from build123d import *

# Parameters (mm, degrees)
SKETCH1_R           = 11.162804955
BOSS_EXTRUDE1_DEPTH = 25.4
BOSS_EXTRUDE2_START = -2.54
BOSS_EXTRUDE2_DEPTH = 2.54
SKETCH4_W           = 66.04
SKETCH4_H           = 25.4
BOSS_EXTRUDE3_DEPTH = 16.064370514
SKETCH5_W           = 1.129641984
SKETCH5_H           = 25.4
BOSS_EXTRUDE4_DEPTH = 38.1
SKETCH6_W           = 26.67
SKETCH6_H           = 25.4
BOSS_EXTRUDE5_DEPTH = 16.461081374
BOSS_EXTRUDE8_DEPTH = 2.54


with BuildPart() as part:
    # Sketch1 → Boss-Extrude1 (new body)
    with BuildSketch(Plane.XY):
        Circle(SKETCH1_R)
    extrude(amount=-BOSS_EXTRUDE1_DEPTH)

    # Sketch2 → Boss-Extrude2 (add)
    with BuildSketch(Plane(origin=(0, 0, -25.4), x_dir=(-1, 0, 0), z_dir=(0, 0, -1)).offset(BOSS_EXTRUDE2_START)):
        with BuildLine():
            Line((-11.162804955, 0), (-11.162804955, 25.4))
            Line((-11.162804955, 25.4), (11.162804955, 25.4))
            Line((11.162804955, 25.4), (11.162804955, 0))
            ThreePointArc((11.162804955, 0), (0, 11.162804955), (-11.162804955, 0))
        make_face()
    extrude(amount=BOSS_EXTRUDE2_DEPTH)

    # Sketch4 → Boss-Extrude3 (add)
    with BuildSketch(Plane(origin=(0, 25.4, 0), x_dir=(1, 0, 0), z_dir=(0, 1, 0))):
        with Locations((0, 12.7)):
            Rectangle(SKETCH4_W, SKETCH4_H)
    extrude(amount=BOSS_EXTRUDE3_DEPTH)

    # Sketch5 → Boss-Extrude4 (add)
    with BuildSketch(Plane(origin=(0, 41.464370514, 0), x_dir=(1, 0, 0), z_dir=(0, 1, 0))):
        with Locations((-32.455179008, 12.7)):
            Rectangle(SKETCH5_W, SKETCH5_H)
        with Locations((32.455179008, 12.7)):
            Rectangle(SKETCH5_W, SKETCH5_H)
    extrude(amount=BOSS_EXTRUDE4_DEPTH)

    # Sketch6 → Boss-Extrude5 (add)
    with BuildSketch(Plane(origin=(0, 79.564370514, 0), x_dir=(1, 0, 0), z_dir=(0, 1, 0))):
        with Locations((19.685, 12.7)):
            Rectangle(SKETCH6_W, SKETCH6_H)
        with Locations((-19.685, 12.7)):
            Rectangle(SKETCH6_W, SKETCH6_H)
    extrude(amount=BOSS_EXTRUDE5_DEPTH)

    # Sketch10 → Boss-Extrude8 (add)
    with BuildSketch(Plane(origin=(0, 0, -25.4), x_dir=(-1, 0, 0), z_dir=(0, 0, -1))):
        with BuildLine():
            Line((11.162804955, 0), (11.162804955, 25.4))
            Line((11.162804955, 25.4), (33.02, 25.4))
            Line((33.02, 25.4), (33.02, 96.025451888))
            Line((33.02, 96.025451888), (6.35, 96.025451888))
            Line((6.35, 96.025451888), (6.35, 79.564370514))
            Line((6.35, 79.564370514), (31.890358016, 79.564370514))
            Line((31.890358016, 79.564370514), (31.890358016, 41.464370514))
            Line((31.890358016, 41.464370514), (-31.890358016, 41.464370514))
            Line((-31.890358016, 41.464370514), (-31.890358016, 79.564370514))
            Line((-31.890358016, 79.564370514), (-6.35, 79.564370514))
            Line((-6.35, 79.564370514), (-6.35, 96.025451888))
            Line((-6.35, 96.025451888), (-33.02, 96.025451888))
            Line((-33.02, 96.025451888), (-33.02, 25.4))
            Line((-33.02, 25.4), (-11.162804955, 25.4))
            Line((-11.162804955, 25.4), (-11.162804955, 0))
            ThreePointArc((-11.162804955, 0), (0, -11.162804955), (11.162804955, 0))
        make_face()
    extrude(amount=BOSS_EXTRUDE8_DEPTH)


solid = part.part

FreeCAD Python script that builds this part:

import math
import FreeCAD as App
import Part
import Sketcher
from FreeCAD import Vector
Q = App.Units.Quantity

doc = App.newDocument("Part")
params = doc.addObject("Spreadsheet::Sheet", "Params")
for row, (alias, value) in enumerate([
    ("pad1_length", "1 in"),
    ("sketch2_height", "1 in"),
    ("pad2_length", "0.1 in"),
    ("sketch3_height", "1 in"),
    ("sketch3_width", "2.6 in"),
    ("pad3_length", "16.064371 mm"),
    ("sketch4_height", "1 in"),
    ("pad4_length", "1.5 in"),
    ("sketch5_height", "1 in"),
    ("sketch5_width", "1.05 in"),
    ("pad5_length", "16.461081 mm"),
    ("sketch6_height", "1 in"),
    ("sketch6_height2", "1.5 in"),
    ("sketch6_width", "1.05 in"),
    ("pad6_length", "0.1 in"),
], start=1):
    params.set(f"A{row}", alias)
    params.set(f"B{row}", "=" + value)
    params.setAlias(f"B{row}", alias)

body = doc.addObject("PartDesign::Body", "Body")

# Sketch on XY plane
sketch1 = body.newObject("Sketcher::SketchObject", "Sketch")
sketch1.AttachmentSupport = (doc.getObject("XY_Plane"), [""])
sketch1.MapMode = "FlatFace"
sketch1.addGeometry(Part.Circle(Vector(0, 0, 0), Vector(0, 0, 1), 11), False)
sketch1.addConstraint([
    Sketcher.Constraint("Coincident", 0, 3, -1, 1),
    Sketcher.Constraint("Diameter", 0, Q("22.32561 mm")),
])
pad1 = body.newObject("PartDesign::Pad", "Pad")
pad1.Profile = sketch1
pad1.setExpression("Length", "Params.pad1_length")
pad1.Reversed = True

# Sketch on XY plane
sketch2 = body.newObject("Sketcher::SketchObject", "Sketch001")
sketch2.AttachmentSupport = (doc.getObject("XY_Plane"), [""])
sketch2.MapMode = "FlatFace"
sketch2.AttachmentOffset = App.Placement(Vector(0, 0, -0.9 * 25.4), App.Rotation())
sketch2.addGeometry([
    Part.LineSegment(Vector(11, 25, 0), Vector(11, 0, 0)),
    Part.ArcOfCircle(Part.Circle(Vector(0, 0, 0), Vector(0, 0, 1), 11), math.radians(0), math.radians(180)),
    Part.LineSegment(Vector(-11, 0, 0), Vector(-11, 25, 0)),
    Part.LineSegment(Vector(-11, 25, 0), Vector(11, 25, 0)),
], False)
sketch2.addConstraint([
    Sketcher.Constraint("Tangent", 0, 2, 1, 1),
    Sketcher.Constraint("Tangent", 1, 2, 2, 1),
    Sketcher.Constraint("Coincident", 2, 2, 3, 1),
    Sketcher.Constraint("Coincident", 3, 2, 0, 1),
    Sketcher.Constraint("Vertical", 0),
    Sketcher.Constraint("Vertical", 2),
    Sketcher.Constraint("Horizontal", 3),
    Sketcher.Constraint("Coincident", 1, 3, -1, 1),
    Sketcher.Constraint("DistanceY", 0, 2, 0, 1, Q("1 in")),
    Sketcher.Constraint("Radius", 1, Q("11.162805 mm")),
])
sketch2.setExpression("Constraints[8]", "Params.sketch2_height")
pad2 = body.newObject("PartDesign::Pad", "Pad001")
pad2.Profile = sketch2
pad2.setExpression("Length", "Params.pad2_length")
pad2.Reversed = True

# Sketch on XZ plane
sketch3 = body.newObject("Sketcher::SketchObject", "Sketch002")
sketch3.AttachmentSupport = (doc.getObject("XZ_Plane"), [""])
sketch3.MapMode = "FlatFace"
sketch3.AttachmentOffset = App.Placement(Vector(0, 0, -1 * 25.4), App.Rotation())
sketch3.addGeometry([
    Part.LineSegment(Vector(-33, -25, 0), Vector(-33, 0, 0)),
    Part.LineSegment(Vector(-33, 0, 0), Vector(33, 0, 0)),
    Part.LineSegment(Vector(33, 0, 0), Vector(33, -25, 0)),
    Part.LineSegment(Vector(33, -25, 0), Vector(-33, -25, 0)),
], False)
sketch3.addConstraint([
    Sketcher.Constraint("Coincident", 0, 2, 1, 1),
    Sketcher.Constraint("Coincident", 1, 2, 2, 1),
    Sketcher.Constraint("Coincident", 2, 2, 3, 1),
    Sketcher.Constraint("Coincident", 3, 2, 0, 1),
    Sketcher.Constraint("Vertical", 0),
    Sketcher.Constraint("Horizontal", 1),
    Sketcher.Constraint("Vertical", 2),
    Sketcher.Constraint("Horizontal", 3),
    Sketcher.Constraint("Symmetric", 0, 2, 1, 2, -1, 1),
    Sketcher.Constraint("DistanceY", 0, 1, 0, 2, Q("1 in")),
    Sketcher.Constraint("DistanceX", 1, 1, 1, 2, Q("2.6 in")),
])
sketch3.setExpression("Constraints[9]", "Params.sketch3_height")
sketch3.setExpression("Constraints[10]", "Params.sketch3_width")
pad3 = body.newObject("PartDesign::Pad", "Pad002")
pad3.Profile = sketch3
pad3.setExpression("Length", "Params.pad3_length")
pad3.Reversed = True

# Sketch on XZ plane
sketch4 = body.newObject("Sketcher::SketchObject", "Sketch003")
sketch4.AttachmentSupport = (doc.getObject("XZ_Plane"), [""])
sketch4.MapMode = "FlatFace"
sketch4.AttachmentOffset = App.Placement(Vector(0, 0, -41.464371), App.Rotation())
sketch4.addGeometry([
    Part.LineSegment(Vector(-33, -25.4, 0), Vector(-33, 0, 0)),  # 0
    Part.LineSegment(Vector(-33, 0, 0), Vector(-31.9, 0, 0)),  # 1
    Part.LineSegment(Vector(-31.9, 0, 0), Vector(-31.9, -25.4, 0)),  # 2
    Part.LineSegment(Vector(-31.9, -25.4, 0), Vector(-33, -25.4, 0)),  # 3
    Part.LineSegment(Vector(31.9, -25.4, 0), Vector(31.9, 0, 0)),  # 4
    Part.LineSegment(Vector(31.9, 0, 0), Vector(33, 0, 0)),  # 5
    Part.LineSegment(Vector(33, 0, 0), Vector(33, -25.4, 0)),  # 6
    Part.LineSegment(Vector(33, -25.4, 0), Vector(31.9, -25.4, 0)),  # 7
], False)
sketch4.addConstraint([
    Sketcher.Constraint("Coincident", 0, 2, 1, 1),
    Sketcher.Constraint("Coincident", 1, 2, 2, 1),
    Sketcher.Constraint("Coincident", 2, 2, 3, 1),
    Sketcher.Constraint("Coincident", 3, 2, 0, 1),
    Sketcher.Constraint("Coincident", 4, 2, 5, 1),
    Sketcher.Constraint("Coincident", 5, 2, 6, 1),
    Sketcher.Constraint("Coincident", 6, 2, 7, 1),
    Sketcher.Constraint("Coincident", 7, 2, 4, 1),
    Sketcher.Constraint("Vertical", 0),
    Sketcher.Constraint("Horizontal", 1),
    Sketcher.Constraint("Vertical", 2),
    Sketcher.Constraint("Horizontal", 3),
    Sketcher.Constraint("Vertical", 4),
    Sketcher.Constraint("Horizontal", 5),
    Sketcher.Constraint("Vertical", 6),
    Sketcher.Constraint("Horizontal", 7),
    Sketcher.Constraint("Symmetric", 1, 2, 4, 2, -1, 1),
    Sketcher.Constraint("Symmetric", 0, 2, 5, 2, -2),
    Sketcher.Constraint("Horizontal", 3, 2, 6, 2),
    Sketcher.Constraint("DistanceY", 0, 1, 0, 2, Q("1 in")),
    Sketcher.Constraint("DistanceX", 0, 2, -1, 1, Q("1.3 in")),
    Sketcher.Constraint("DistanceX", 1, 1, 1, 2, Q("1.129642 mm")),
])
sketch4.setExpression("Constraints[19]", "Params.sketch4_height")
pad4 = body.newObject("PartDesign::Pad", "Pad003")
pad4.Profile = sketch4
pad4.setExpression("Length", "Params.pad4_length")
pad4.Reversed = True

# Sketch on XZ plane
sketch5 = body.newObject("Sketcher::SketchObject", "Sketch004")
sketch5.AttachmentSupport = (doc.getObject("XZ_Plane"), [""])
sketch5.MapMode = "FlatFace"
sketch5.AttachmentOffset = App.Placement(Vector(0, 0, -79.564371), App.Rotation())
sketch5.addGeometry([
    Part.LineSegment(Vector(6, -25, 0), Vector(6, 0, 0)),  # 0
    Part.LineSegment(Vector(6, 0, 0), Vector(33, 0, 0)),  # 1
    Part.LineSegment(Vector(33, 0, 0), Vector(33, -25, 0)),  # 2
    Part.LineSegment(Vector(33, -25, 0), Vector(6, -25, 0)),  # 3
    Part.LineSegment(Vector(-33, -25, 0), Vector(-33, 0, 0)),  # 4
    Part.LineSegment(Vector(-33, 0, 0), Vector(-6, 0, 0)),  # 5
    Part.LineSegment(Vector(-6, 0, 0), Vector(-6, -25, 0)),  # 6
    Part.LineSegment(Vector(-6, -25, 0), Vector(-33, -25, 0)),  # 7
], False)
sketch5.addConstraint([
    Sketcher.Constraint("Coincident", 0, 2, 1, 1),
    Sketcher.Constraint("Coincident", 1, 2, 2, 1),
    Sketcher.Constraint("Coincident", 2, 2, 3, 1),
    Sketcher.Constraint("Coincident", 3, 2, 0, 1),
    Sketcher.Constraint("Coincident", 4, 2, 5, 1),
    Sketcher.Constraint("Coincident", 5, 2, 6, 1),
    Sketcher.Constraint("Coincident", 6, 2, 7, 1),
    Sketcher.Constraint("Coincident", 7, 2, 4, 1),
    Sketcher.Constraint("Vertical", 0),
    Sketcher.Constraint("Horizontal", 1),
    Sketcher.Constraint("Vertical", 2),
    Sketcher.Constraint("Horizontal", 3),
    Sketcher.Constraint("Vertical", 4),
    Sketcher.Constraint("Horizontal", 5),
    Sketcher.Constraint("Vertical", 6),
    Sketcher.Constraint("Horizontal", 7),
    Sketcher.Constraint("Symmetric", 1, 2, 4, 2, -1, 1),
    Sketcher.Constraint("Symmetric", 0, 2, 5, 2, -2),
    Sketcher.Constraint("Horizontal", 3, 2, 6, 2),
    Sketcher.Constraint("DistanceY", 0, 1, 0, 2, Q("1 in")),
    Sketcher.Constraint("DistanceX", 1, 1, 1, 2, Q("1.05 in")),
    Sketcher.Constraint("DistanceX", -1, 1, 1, 2, Q("1.3 in")),
])
sketch5.setExpression("Constraints[19]", "Params.sketch5_height")
sketch5.setExpression("Constraints[20]", "Params.sketch5_width")
pad5 = body.newObject("PartDesign::Pad", "Pad004")
pad5.Profile = sketch5
pad5.setExpression("Length", "Params.pad5_length")
pad5.Reversed = True

# Sketch on XY plane
sketch6 = body.newObject("Sketcher::SketchObject", "Sketch005")
sketch6.AttachmentSupport = (doc.getObject("XY_Plane"), [""])
sketch6.MapMode = "FlatFace"
sketch6.AttachmentOffset = App.Placement(Vector(0, 0, -1 * 25.4), App.Rotation())
sketch6.addGeometry([
    Part.LineSegment(Vector(-11, 0, 0), Vector(-11, 25, 0)),  # 0
    Part.LineSegment(Vector(-11, 25, 0), Vector(-33, 25, 0)),  # 1
    Part.LineSegment(Vector(-33, 25, 0), Vector(-33, 96, 0)),  # 2
    Part.LineSegment(Vector(-33, 96, 0), Vector(-6, 96, 0)),  # 3
    Part.LineSegment(Vector(-6, 96, 0), Vector(-6, 80, 0)),  # 4
    Part.LineSegment(Vector(-6, 80, 0), Vector(-32, 80, 0)),  # 5
    Part.LineSegment(Vector(-32, 80, 0), Vector(-32, 41, 0)),  # 6
    Part.LineSegment(Vector(-32, 41, 0), Vector(32, 41, 0)),  # 7
    Part.LineSegment(Vector(32, 41, 0), Vector(32, 80, 0)),  # 8
    Part.LineSegment(Vector(32, 80, 0), Vector(6, 80, 0)),  # 9
    Part.LineSegment(Vector(6, 80, 0), Vector(6, 96, 0)),  # 10
    Part.LineSegment(Vector(6, 96, 0), Vector(33, 96, 0)),  # 11
    Part.LineSegment(Vector(33, 96, 0), Vector(33, 25, 0)),  # 12
    Part.LineSegment(Vector(33, 25, 0), Vector(11, 25, 0)),  # 13
    Part.LineSegment(Vector(11, 25, 0), Vector(11, 0, 0)),  # 14
    Part.ArcOfCircle(Part.Circle(Vector(0, 0, 0), Vector(0, 0, 1), 11), math.radians(180), math.radians(360)),  # 15
], False)
sketch6.addConstraint([
    Sketcher.Constraint("Coincident", 0, 2, 1, 1),
    Sketcher.Constraint("Coincident", 1, 2, 2, 1),
    Sketcher.Constraint("Coincident", 2, 2, 3, 1),
    Sketcher.Constraint("Coincident", 3, 2, 4, 1),
    Sketcher.Constraint("Coincident", 4, 2, 5, 1),
    Sketcher.Constraint("Coincident", 5, 2, 6, 1),
    Sketcher.Constraint("Coincident", 6, 2, 7, 1),
    Sketcher.Constraint("Coincident", 7, 2, 8, 1),
    Sketcher.Constraint("Coincident", 8, 2, 9, 1),
    Sketcher.Constraint("Coincident", 9, 2, 10, 1),
    Sketcher.Constraint("Coincident", 10, 2, 11, 1),
    Sketcher.Constraint("Coincident", 11, 2, 12, 1),
    Sketcher.Constraint("Coincident", 12, 2, 13, 1),
    Sketcher.Constraint("Coincident", 13, 2, 14, 1),
    Sketcher.Constraint("Tangent", 14, 2, 15, 2),
    Sketcher.Constraint("Tangent", 15, 1, 0, 1),
    Sketcher.Constraint("Vertical", 0),
    Sketcher.Constraint("Horizontal", 1),
    Sketcher.Constraint("Vertical", 2),
    Sketcher.Constraint("Horizontal", 3),
    Sketcher.Constraint("Vertical", 4),
    Sketcher.Constraint("Horizontal", 5),
    Sketcher.Constraint("Vertical", 6),
    Sketcher.Constraint("Horizontal", 7),
    Sketcher.Constraint("Vertical", 8),
    Sketcher.Constraint("Horizontal", 9),
    Sketcher.Constraint("Vertical", 10),
    Sketcher.Constraint("Horizontal", 11),
    Sketcher.Constraint("Vertical", 12),
    Sketcher.Constraint("Horizontal", 13),
    Sketcher.Constraint("Vertical", 14),
    Sketcher.Constraint("Coincident", 15, 3, -1, 1),
    Sketcher.Constraint("Symmetric", 5, 2, 8, 2, -2),
    Sketcher.Constraint("Symmetric", 3, 2, 10, 2, -2),
    Sketcher.Constraint("Symmetric", 1, 2, 12, 2, -2),
    Sketcher.Constraint("DistanceY", 0, 1, 0, 2, Q("1 in")),
    Sketcher.Constraint("DistanceY", 6, 2, 6, 1, Q("1.5 in")),
    Sketcher.Constraint("DistanceX", 3, 1, 3, 2, Q("1.05 in")),
    Sketcher.Constraint("DistanceX", 1, 2, -1, 1, Q("1.3 in")),
    Sketcher.Constraint("Radius", 15, Q("11.162805 mm")),
    Sketcher.Constraint("DistanceX", 5, 2, 5, 1, Q("25.540358 mm")),
    Sketcher.Constraint("DistanceY", 2, 1, 2, 2, Q("70.625452 mm")),
    Sketcher.Constraint("DistanceY", 4, 2, 4, 1, Q("16.461081 mm")),
])
sketch6.setExpression("Constraints[35]", "Params.sketch6_height")
sketch6.setExpression("Constraints[36]", "Params.sketch6_height2")
sketch6.setExpression("Constraints[37]", "Params.sketch6_width")
pad6 = body.newObject("PartDesign::Pad", "Pad005")
pad6.Profile = sketch6
pad6.setExpression("Length", "Params.pad6_length")
pad6.Reversed = True

doc.recompute()
